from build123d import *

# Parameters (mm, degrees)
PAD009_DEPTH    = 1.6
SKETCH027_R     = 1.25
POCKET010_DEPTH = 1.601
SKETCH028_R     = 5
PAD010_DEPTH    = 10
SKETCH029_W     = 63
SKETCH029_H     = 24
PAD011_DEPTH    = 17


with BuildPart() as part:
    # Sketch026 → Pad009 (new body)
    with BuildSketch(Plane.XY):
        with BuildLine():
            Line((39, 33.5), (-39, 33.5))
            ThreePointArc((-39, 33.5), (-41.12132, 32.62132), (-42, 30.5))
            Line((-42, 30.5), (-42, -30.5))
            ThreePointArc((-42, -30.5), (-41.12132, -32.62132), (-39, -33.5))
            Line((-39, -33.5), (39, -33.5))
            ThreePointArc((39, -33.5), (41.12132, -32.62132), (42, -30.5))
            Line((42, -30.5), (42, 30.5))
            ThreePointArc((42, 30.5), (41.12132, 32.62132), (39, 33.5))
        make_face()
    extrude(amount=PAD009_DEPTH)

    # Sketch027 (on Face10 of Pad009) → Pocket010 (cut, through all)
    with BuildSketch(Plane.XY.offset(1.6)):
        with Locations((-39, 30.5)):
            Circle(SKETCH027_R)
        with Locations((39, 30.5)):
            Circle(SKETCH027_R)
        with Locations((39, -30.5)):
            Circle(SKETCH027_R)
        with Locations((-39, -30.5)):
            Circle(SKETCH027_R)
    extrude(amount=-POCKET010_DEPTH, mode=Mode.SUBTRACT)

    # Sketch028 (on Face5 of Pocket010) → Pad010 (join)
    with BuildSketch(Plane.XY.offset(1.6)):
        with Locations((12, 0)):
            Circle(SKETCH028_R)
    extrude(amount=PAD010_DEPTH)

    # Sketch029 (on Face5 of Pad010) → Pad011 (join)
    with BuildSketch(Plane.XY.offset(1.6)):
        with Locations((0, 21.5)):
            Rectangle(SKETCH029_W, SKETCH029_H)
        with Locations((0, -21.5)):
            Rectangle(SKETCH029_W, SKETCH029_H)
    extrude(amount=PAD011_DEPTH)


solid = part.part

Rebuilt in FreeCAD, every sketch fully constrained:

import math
import FreeCAD as App
import Part
import Sketcher
from FreeCAD import Vector


def add_polygon(sketch, points):
    """Adds a closed chain of lines whose ends are joined by coincident constraints."""
    first, n = sketch.GeometryCount, len(points)
    for a, b in zip(points, points[1:] + points[:1]):
        sketch.addGeometry(Part.LineSegment(App.Vector(*a, 0), App.Vector(*b, 0)), False)
    for i in range(n):
        sketch.addConstraint(Sketcher.Constraint("Coincident", first + i, 2, first + (i + 1) % n, 1))

doc = App.newDocument("Part")
body = doc.addObject("PartDesign::Body", "Body")

sketch1 = body.newObject("Sketcher::SketchObject", "Sketch")
sketch1.AttachmentSupport = (doc.getObject("XY_Plane"), [""])
sketch1.MapMode = "FlatFace"
sketch1.addGeometry([
    Part.LineSegment(Vector(39, 33.5, 0), Vector(-39, 33.5, 0)),
    Part.ArcOfCircle(Part.Circle(Vector(-39, 30.5, 0), Vector(0, 0, 1), 3), math.radians(90), math.radians(180)),
    Part.LineSegment(Vector(-42, 30.5, 0), Vector(-42, -30.5, 0)),
    Part.ArcOfCircle(Part.Circle(Vector(-39, -30.5, 0), Vector(0, 0, 1), 3), math.radians(-180), math.radians(-90)),
    Part.LineSegment(Vector(-39, -33.5, 0), Vector(39, -33.5, 0)),
    Part.ArcOfCircle(Part.Circle(Vector(39, -30.5, 0), Vector(0, 0, 1), 3), math.radians(-90), math.radians(0)),
    Part.LineSegment(Vector(42, -30.5, 0), Vector(42, 30.5, 0)),
    Part.ArcOfCircle(Part.Circle(Vector(39, 30.5, 0), Vector(0, 0, 1), 3), math.radians(0), math.radians(90)),
], False)
sketch1.addConstraint([
    Sketcher.Constraint("Tangent", 0, 2, 1, 1),
    Sketcher.Constraint("Tangent", 1, 2, 2, 1),
    Sketcher.Constraint("Tangent", 2, 2, 3, 1),
    Sketcher.Constraint("Tangent", 3, 2, 4, 1),
    Sketcher.Constraint("Tangent", 4, 2, 5, 1),
    Sketcher.Constraint("Tangent", 5, 2, 6, 1),
    Sketcher.Constraint("Tangent", 6, 2, 7, 1),
    Sketcher.Constraint("Tangent", 7, 2, 0, 1),
    Sketcher.Constraint("Horizontal", 0),
    Sketcher.Constraint("Vertical", 2),
    Sketcher.Constraint("Horizontal", 4),
    Sketcher.Constraint("Vertical", 6),
    Sketcher.Constraint("Equal", 1, 3),
    Sketcher.Constraint("Equal", 3, 5),
    Sketcher.Constraint("Equal", 5, 7),
    Sketcher.Constraint("Symmetric", 1, 3, 5, 3, -1, 1),
    Sketcher.Constraint("Radius", 1, 3.000001),
    Sketcher.Constraint("DistanceX", 0, 2, 0, 1, 78.0),
    Sketcher.Constraint("DistanceY", 2, 2, 2, 1, 61.0),
])
pad1 = body.newObject("PartDesign::Pad", "Pad")
pad1.Profile = sketch1
pad1.Length = 1.6

sketch2 = body.newObject("Sketcher::SketchObject", "Sketch001")
sketch2.AttachmentSupport = (doc.getObject("XY_Plane"), [""])
sketch2.MapMode = "FlatFace"
sketch2.AttachmentOffset = App.Placement(Vector(0, 0, 1.6), App.Rotation())
sketch2.addGeometry([
    Part.Circle(Vector(-39, 30.5, 0), Vector(0, 0, 1), 1.2),
    Part.Circle(Vector(39, 30.5, 0), Vector(0, 0, 1), 1.2),
    Part.Circle(Vector(39, -30.5, 0), Vector(0, 0, 1), 1.2),
    Part.Circle(Vector(-39, -30.5, 0), Vector(0, 0, 1), 1.2),
], False)
sketch2.addConstraint([
    Sketcher.Constraint("Equal", 0, 1),
    Sketcher.Constraint("Equal", 1, 2),
    Sketcher.Constraint("Equal", 2, 3),
    Sketcher.Constraint("Symmetric", 0, 3, 2, 3, -1, 1),
    Sketcher.Constraint("Symmetric", 1, 3, 3, 3, -1, 1),
    Sketcher.Constraint("Symmetric", 0, 3, 1, 3, -2),
    Sketcher.Constraint("Diameter", 0, 2.5),
    Sketcher.Constraint("DistanceX", 0, 3, -1, 1, 39.0),
    Sketcher.Constraint("DistanceY", 2, 3, 1, 3, 61.0),
])
pocket1 = body.newObject("PartDesign::Pocket", "Pocket")
pocket1.Profile = sketch2
pocket1.Type = "ThroughAll"

sketch3 = body.newObject("Sketcher::SketchObject", "Sketch002")
sketch3.AttachmentSupport = (doc.getObject("XY_Plane"), [""])
sketch3.MapMode = "FlatFace"
sketch3.AttachmentOffset = App.Placement(Vector(0, 0, 1.6), App.Rotation())
sketch3.addGeometry(Part.Circle(Vector(12, 0, 0), Vector(0, 0, 1), 5), False)
sketch3.addConstraint([
    Sketcher.Constraint("PointOnObject", 0, 3, -1),
    Sketcher.Constraint("Diameter", 0, 10.0),
    Sketcher.Constraint("DistanceX", -1, 1, 0, 3, 12.0),
])
pad2 = body.newObject("PartDesign::Pad", "Pad001")
pad2.Profile = sketch3
pad2.Length = 10

sketch4 = body.newObject("Sketcher::SketchObject", "Sketch003")
sketch4.AttachmentSupport = (doc.getObject("XY_Plane"), [""])
sketch4.MapMode = "FlatFace"
sketch4.AttachmentOffset = App.Placement(Vector(0, 0, 1.6), App.Rotation())
add_polygon(sketch4, [(-32, 34), (-32, 10), (32, 10), (32, 34)])
add_polygon(sketch4, [(-32, -10), (-32, -34), (32, -34), (32, -10)])
sketch4.addConstraint([
    Sketcher.Constraint("Vertical", 0),
    Sketcher.Constraint("Horizontal", 1),
    Sketcher.Constraint("Vertical", 2),
    Sketcher.Constraint("Horizontal", 3),
    Sketcher.Constraint("Vertical", 4),
    Sketcher.Constraint("Horizontal", 5),
    Sketcher.Constraint("Vertical", 6),
    Sketcher.Constraint("Horizontal", 7),
    Sketcher.Constraint("Symmetric", 2, 2, 4, 2, -1, 1),
    Sketcher.Constraint("Symmetric", 0, 2, 6, 2, -1, 1),
    Sketcher.Constraint("Vertical", 3, 2, 4, 2),
    Sketcher.Constraint("DistanceX", 1, 1, 1, 2, 63.0),
    Sketcher.Constraint("DistanceY", 0, 2, 0, 1, 24.0),
    Sketcher.Constraint("DistanceY", 4, 2, 0, 2, 43.0),
])
pad3 = body.newObject("PartDesign::Pad", "Pad002")
pad3.Profile = sketch4
pad3.Length = 17

doc.recompute()
